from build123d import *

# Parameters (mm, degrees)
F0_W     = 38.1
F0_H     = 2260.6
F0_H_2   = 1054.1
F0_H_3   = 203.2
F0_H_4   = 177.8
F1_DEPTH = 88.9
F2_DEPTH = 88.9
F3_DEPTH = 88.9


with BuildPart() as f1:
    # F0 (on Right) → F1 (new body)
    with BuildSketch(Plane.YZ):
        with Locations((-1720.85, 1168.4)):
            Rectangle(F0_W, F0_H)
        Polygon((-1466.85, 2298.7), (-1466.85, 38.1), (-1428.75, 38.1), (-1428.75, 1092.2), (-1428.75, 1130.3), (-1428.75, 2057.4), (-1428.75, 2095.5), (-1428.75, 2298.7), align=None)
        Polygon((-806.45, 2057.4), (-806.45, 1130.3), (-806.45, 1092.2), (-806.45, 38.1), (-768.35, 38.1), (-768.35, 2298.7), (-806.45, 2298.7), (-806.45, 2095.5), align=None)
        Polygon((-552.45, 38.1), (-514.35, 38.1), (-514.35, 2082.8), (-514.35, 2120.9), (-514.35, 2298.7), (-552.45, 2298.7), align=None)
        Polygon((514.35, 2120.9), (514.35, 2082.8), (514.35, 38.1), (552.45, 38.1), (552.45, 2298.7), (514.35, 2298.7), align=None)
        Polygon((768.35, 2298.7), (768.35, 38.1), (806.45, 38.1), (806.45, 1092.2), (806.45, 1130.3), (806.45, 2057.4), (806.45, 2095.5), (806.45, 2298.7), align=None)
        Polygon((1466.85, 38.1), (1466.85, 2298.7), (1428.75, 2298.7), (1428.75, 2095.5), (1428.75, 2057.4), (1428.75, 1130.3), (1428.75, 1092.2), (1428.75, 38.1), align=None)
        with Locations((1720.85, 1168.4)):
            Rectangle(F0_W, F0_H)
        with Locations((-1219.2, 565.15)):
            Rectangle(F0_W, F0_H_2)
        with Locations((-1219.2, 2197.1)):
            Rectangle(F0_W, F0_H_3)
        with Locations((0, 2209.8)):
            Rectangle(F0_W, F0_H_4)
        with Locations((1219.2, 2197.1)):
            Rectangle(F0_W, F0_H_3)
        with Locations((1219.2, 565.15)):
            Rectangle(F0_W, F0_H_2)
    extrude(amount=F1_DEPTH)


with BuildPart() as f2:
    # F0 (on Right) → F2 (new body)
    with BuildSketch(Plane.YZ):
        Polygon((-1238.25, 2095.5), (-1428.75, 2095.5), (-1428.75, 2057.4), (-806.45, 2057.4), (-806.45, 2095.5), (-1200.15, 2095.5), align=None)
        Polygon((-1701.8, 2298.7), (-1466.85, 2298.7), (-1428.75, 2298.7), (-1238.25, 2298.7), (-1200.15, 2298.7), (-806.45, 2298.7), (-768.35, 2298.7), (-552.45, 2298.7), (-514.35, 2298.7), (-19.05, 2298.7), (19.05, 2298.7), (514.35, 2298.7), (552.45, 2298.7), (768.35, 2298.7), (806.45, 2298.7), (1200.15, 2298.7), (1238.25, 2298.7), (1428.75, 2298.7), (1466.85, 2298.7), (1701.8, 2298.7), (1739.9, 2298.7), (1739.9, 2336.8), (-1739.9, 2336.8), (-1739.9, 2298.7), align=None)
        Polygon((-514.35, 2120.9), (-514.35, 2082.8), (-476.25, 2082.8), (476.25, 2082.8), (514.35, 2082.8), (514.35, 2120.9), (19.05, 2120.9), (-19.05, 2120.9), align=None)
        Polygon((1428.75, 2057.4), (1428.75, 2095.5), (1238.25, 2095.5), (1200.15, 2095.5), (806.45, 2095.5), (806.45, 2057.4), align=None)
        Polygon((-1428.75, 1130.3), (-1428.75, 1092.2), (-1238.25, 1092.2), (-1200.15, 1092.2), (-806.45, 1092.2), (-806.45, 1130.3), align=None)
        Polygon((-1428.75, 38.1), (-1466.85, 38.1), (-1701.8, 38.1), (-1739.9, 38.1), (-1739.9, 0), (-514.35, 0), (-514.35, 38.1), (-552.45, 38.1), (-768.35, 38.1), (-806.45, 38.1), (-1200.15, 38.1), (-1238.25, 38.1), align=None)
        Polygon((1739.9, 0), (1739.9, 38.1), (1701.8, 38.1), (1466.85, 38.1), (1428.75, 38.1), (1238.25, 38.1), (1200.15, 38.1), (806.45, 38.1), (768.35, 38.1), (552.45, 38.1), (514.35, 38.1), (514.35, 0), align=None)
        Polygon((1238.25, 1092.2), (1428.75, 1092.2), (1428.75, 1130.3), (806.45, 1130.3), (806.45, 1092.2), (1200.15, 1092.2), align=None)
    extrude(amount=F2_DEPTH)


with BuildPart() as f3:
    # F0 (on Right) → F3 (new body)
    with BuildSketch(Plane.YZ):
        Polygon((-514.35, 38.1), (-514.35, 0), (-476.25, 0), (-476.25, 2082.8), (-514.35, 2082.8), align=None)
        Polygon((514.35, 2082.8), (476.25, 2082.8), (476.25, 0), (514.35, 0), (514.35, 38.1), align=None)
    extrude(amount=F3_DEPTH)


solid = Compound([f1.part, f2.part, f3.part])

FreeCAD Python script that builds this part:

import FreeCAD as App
import Part
import Sketcher

V = App.Vector
Q = App.Units.Quantity


def add_polygon(sketch, points):
    """Adds a closed chain of lines whose ends are joined by coincident constraints."""
    first, n = sketch.GeometryCount, len(points)
    for a, b in zip(points, points[1:] + points[:1]):
        sketch.addGeometry(Part.LineSegment(App.Vector(*a, 0), App.Vector(*b, 0)), False)
    for i in range(n):
        sketch.addConstraint(Sketcher.Constraint("Coincident", first + i, 2, first + (i + 1) % n, 1))

doc = App.newDocument("Part")
body = doc.addObject("PartDesign::Body", "Body")
body.AllowCompound = True

# Sketch on YZ plane
sketch1 = body.newObject("Sketcher::SketchObject", "Sketch")
sketch1.AttachmentSupport = (doc.getObject("YZ_Plane"), [""])
sketch1.MapMode = "FlatFace"
add_polygon(sketch1, [(-1740, 2299), (-1740, 38), (-1702, 38), (-1702, 2299)])  # lines 0-3
add_polygon(sketch1, [(-1467, 2299), (-1467, 38), (-1429, 38), (-1429, 2299)])  # lines 4-7
add_polygon(sketch1, [(-806, 38), (-768, 38), (-768, 2299), (-806, 2299)])  # lines 8-11
add_polygon(sketch1, [(-552, 38), (-514, 38), (-514, 2299), (-552, 2299)])  # lines 12-15
add_polygon(sketch1, [(514, 38), (552, 38), (552, 2299), (514, 2299)])  # lines 16-19
add_polygon(sketch1, [(768, 2299), (768, 38), (806, 38), (806, 2299)])  # lines 20-23
add_polygon(sketch1, [(1467, 38), (1467, 2299), (1429, 2299), (1429, 38)])  # lines 24-27
add_polygon(sketch1, [(1702, 2299), (1702, 38), (1740, 38), (1740, 2299)])  # lines 28-31
add_polygon(sketch1, [(-1238, 1092), (-1238, 38), (-1200, 38), (-1200, 1092)])  # lines 32-35
add_polygon(sketch1, [(-1238, 2299), (-1238, 2096), (-1200, 2096), (-1200, 2299)])  # lines 36-39
add_polygon(sketch1, [(-19, 2299), (-19, 2121), (19, 2121), (19, 2299)])  # lines 40-43
add_polygon(sketch1, [(1200, 2299), (1200, 2096), (1238, 2096), (1238, 2299)])  # lines 44-47
add_polygon(sketch1, [(1200, 1092), (1200, 38), (1238, 38), (1238, 1092)])  # lines 48-51
sketch1.addConstraint([
    Sketcher.Constraint("Vertical", 0),
    Sketcher.Constraint("Horizontal", 1),
    Sketcher.Constraint("Vertical", 2),
    Sketcher.Constraint("Horizontal", 3),
    Sketcher.Constraint("Vertical", 4),
    Sketcher.Constraint("Horizontal", 5),
    Sketcher.Constraint("Vertical", 6),
    Sketcher.Constraint("Horizontal", 7),
    Sketcher.Constraint("Horizontal", 8),
    Sketcher.Constraint("Vertical", 9),
    Sketcher.Constraint("Horizontal", 10),
    Sketcher.Constraint("Vertical", 11),
    Sketcher.Constraint("Horizontal", 12),
    Sketcher.Constraint("Vertical", 13),
    Sketcher.Constraint("Horizontal", 14),
    Sketcher.Constraint("Vertical", 15),
    Sketcher.Constraint("Horizontal", 16),
    Sketcher.Constraint("Vertical", 17),
    Sketcher.Constraint("Horizontal", 18),
    Sketcher.Constraint("Vertical", 19),
    Sketcher.Constraint("Vertical", 20),
    Sketcher.Constraint("Horizontal", 21),
    Sketcher.Constraint("Vertical", 22),
    Sketcher.Constraint("Horizontal", 23),
    Sketcher.Constraint("Vertical", 24),
    Sketcher.Constraint("Horizontal", 25),
    Sketcher.Constraint("Vertical", 26),
    Sketcher.Constraint("Horizontal", 27),
    Sketcher.Constraint("Vertical", 28),
    Sketcher.Constraint("Horizontal", 29),
    Sketcher.Constraint("Vertical", 30),
    Sketcher.Constraint("Horizontal", 31),
    Sketcher.Constraint("Vertical", 32),
    Sketcher.Constraint("Horizontal", 33),
    Sketcher.Constraint("Vertical", 34),
    Sketcher.Constraint("Horizontal", 35),
    Sketcher.Constraint("Vertical", 36),
    Sketcher.Constraint("Horizontal", 37),
    Sketcher.Constraint("Vertical", 38),
    Sketcher.Constraint("Horizontal", 39),
    Sketcher.Constraint("Vertical", 40),
    Sketcher.Constraint("Horizontal", 41),
    Sketcher.Constraint("Vertical", 42),
    Sketcher.Constraint("Horizontal", 43),
    Sketcher.Constraint("Vertical", 44),
    Sketcher.Constraint("Horizontal", 45),
    Sketcher.Constraint("Vertical", 46),
    Sketcher.Constraint("Horizontal", 47),
    Sketcher.Constraint("Vertical", 48),
    Sketcher.Constraint("Horizontal", 49),
    Sketcher.Constraint("Vertical", 50),
    Sketcher.Constraint("Horizontal", 51),
    Sketcher.Constraint("Symmetric", 15, 2, 16, 2, -2),
    Sketcher.Constraint("Symmetric", 13, 2, 18, 2, -2),
    Sketcher.Constraint("Symmetric", 8, 2, 20, 2, -2),
    Sketcher.Constraint("Symmetric", 10, 2, 22, 2, -2),
    Sketcher.Constraint("Symmetric", 7, 2, 24, 2, -2),
    Sketcher.Constraint("Symmetric", 5, 2, 26, 2, -2),
    Sketcher.Constraint("Symmetric", 1, 2, 28, 2, -2),
    Sketcher.Constraint("Symmetric", 3, 2, 30, 2, -2),
    Sketcher.Constraint("Symmetric", 37, 2, 44, 2, -2),
    Sketcher.Constraint("Symmetric", 39, 2, 46, 2, -2),
    Sketcher.Constraint("Symmetric", 33, 2, 48, 2, -2),
    Sketcher.Constraint("Symmetric", 35, 2, 50, 2, -2),
    Sketcher.Constraint("Horizontal", 1, 2, 4, 2),
    Sketcher.Constraint("Horizontal", 3, 2, 6, 2),
    Sketcher.Constraint("Horizontal", 5, 2, 8, 2),
    Sketcher.Constraint("Horizontal", 7, 2, 9, 2),
    Sketcher.Constraint("Horizontal", 11, 2, 12, 2),
    Sketcher.Constraint("Horizontal", 10, 2, 13, 2),
    Sketcher.Constraint("Horizontal", 29, 2, 32, 2),
    Sketcher.Constraint("Horizontal", 31, 2, 38, 2),
    Sketcher.Constraint("Horizontal", 39, 2, 42, 2),
    Sketcher.Constraint("Vertical", 35, 2, 36, 2),
    Sketcher.Constraint("Vertical", 34, 2, 37, 2),
    Sketcher.Constraint("Equal", 3, 5),
    Sketcher.Constraint("Equal", 7, 8),
    Sketcher.Constraint("Equal", 10, 12),
    Sketcher.Constraint("Equal", 31, 33),
    Sketcher.Constraint("Equal", 39, 41),
    Sketcher.Constraint("DistanceY", 0, 2, 0, 1, Q("89 in")),
    Sketcher.Constraint("DistanceY", 36, 2, 36, 1, Q("8 in")),
    Sketcher.Constraint("DistanceY", 40, 2, 40, 1, Q("7 in")),
    Sketcher.Constraint("DistanceX", 1, 1, 1, 2, Q("1.5 in")),
    Sketcher.Constraint("DistanceY", 32, 2, 32, 1, Q("41.5 in")),
    Sketcher.Constraint("DistanceX", 1, 2, -1, 1, Q("67 in")),
    Sketcher.Constraint("DistanceY", -1, 1, 34, 2, Q("43 in")),
    Sketcher.Constraint("DistanceX", 5, 2, 8, 2, Q("26 in")),
    Sketcher.Constraint("DistanceX", 8, 2, 12, 2, Q("10 in")),
    Sketcher.Constraint("DistanceX", 12, 2, 16, 2, Q("42 in")),
    Sketcher.Constraint("DistanceX", 4, 2, 32, 2, Q("9 in")),
    Sketcher.Constraint("DistanceX", 40, 2, 18, 2, Q("21 in")),
])
pad1 = body.newObject("PartDesign::Pad", "Pad")
pad1.Profile = sketch1
pad1.Length = Q("3.5 in")
body2 = doc.addObject("PartDesign::Body", "Body001")
body2.AllowCompound = True

# Sketch on YZ plane
sketch2 = body2.newObject("Sketcher::SketchObject", "Sketch001")
sketch2.AttachmentSupport = (doc.getObject("YZ_Plane001"), [""])
sketch2.MapMode = "FlatFace"
add_polygon(sketch2, [(-1429, 2096), (-1429, 2057), (-806, 2057), (-806, 2096)])  # lines 0-3
add_polygon(sketch2, [(1740, 2299), (1740, 2337), (-1740, 2337), (-1740, 2299)])  # lines 4-7
add_polygon(sketch2, [(-514, 2121), (-514, 2083), (514, 2083), (514, 2121)])  # lines 8-11
add_polygon(sketch2, [(1429, 2057), (1429, 2096), (806, 2096), (806, 2057)])  # lines 12-15
add_polygon(sketch2, [(-1429, 1130), (-1429, 1092), (-806, 1092), (-806, 1130)])  # lines 16-19
add_polygon(sketch2, [(-1740, 38), (-1740, 0), (-514, 0), (-514, 38)])  # lines 20-23
add_polygon(sketch2, [(1740, 0), (1740, 38), (514, 38), (514, 0)])  # lines 24-27
add_polygon(sketch2, [(1429, 1092), (1429, 1130), (806, 1130), (806, 1092)])  # lines 28-31
sketch2.addConstraint([
    Sketcher.Constraint("Vertical", 0),
    Sketcher.Constraint("Horizontal", 1),
    Sketcher.Constraint("Vertical", 2),
    Sketcher.Constraint("Horizontal", 3),
    Sketcher.Constraint("Vertical", 4),
    Sketcher.Constraint("Horizontal", 5),
    Sketcher.Constraint("Vertical", 6),
    Sketcher.Constraint("Horizontal", 7),
    Sketcher.Constraint("Vertical", 8),
    Sketcher.Constraint("Horizontal", 9),
    Sketcher.Constraint("Vertical", 10),
    Sketcher.Constraint("Horizontal", 11),
    Sketcher.Constraint("Vertical", 12),
    Sketcher.Constraint("Horizontal", 13),
    Sketcher.Constraint("Vertical", 14),
    Sketcher.Constraint("Horizontal", 15),
    Sketcher.Constraint("Vertical", 16),
    Sketcher.Constraint("Horizontal", 17),
    Sketcher.Constraint("Vertical", 18),
    Sketcher.Constraint("Horizontal", 19),
    Sketcher.Constraint("Vertical", 20),
    Sketcher.Constraint("Horizontal", 21),
    Sketcher.Constraint("Vertical", 22),
    Sketcher.Constraint("Horizontal", 23),
    Sketcher.Constraint("Vertical", 24),
    Sketcher.Constraint("Horizontal", 25),
    Sketcher.Constraint("Vertical", 26),
    Sketcher.Constraint("Horizontal", 27),
    Sketcher.Constraint("Vertical", 28),
    Sketcher.Constraint("Horizontal", 29),
    Sketcher.Constraint("Vertical", 30),
    Sketcher.Constraint("Horizontal", 31),
    Sketcher.Constraint("Symmetric", 21, 2, 26, 2, -1, 1),
    Sketcher.Constraint("Symmetric", 3, 2, 12, 2, -2),
    Sketcher.Constraint("Symmetric", 1, 2, 14, 2, -2),
    Sketcher.Constraint("Symmetric", 23, 2, 24, 2, -2),
    Sketcher.Constraint("Symmetric", 19, 2, 28, 2, -2),
    Sketcher.Constraint("Symmetric", 17, 2, 30, 2, -2),
    Sketcher.Constraint("PointOnObject", 20, 2, -1),
    Sketcher.Constraint("Vertical", 3, 2, 16, 2),
    Sketcher.Constraint("Vertical", 2, 2, 17, 2),
    Sketcher.Constraint("Vertical", 6, 2, 20, 2),
    Sketcher.Constraint("Vertical", 11, 2, 21, 2),
    Sketcher.Constraint("Vertical", 7, 2, 24, 2),
    Sketcher.Constraint("Vertical", 10, 2, 25, 2),
    Sketcher.Constraint("Equal", 2, 4),
    Sketcher.Constraint("Equal", 6, 8),
    Sketcher.Constraint("Equal", 14, 16),
    Sketcher.Constraint("Equal", 18, 20),
    Sketcher.Constraint("DistanceX", 5, 2, 5, 1, Q("137 in")),
    Sketcher.Constraint("DistanceX", 1, 1, 1, 2, Q("24.5 in")),
    Sketcher.Constraint("DistanceX", 9, 1, 9, 2, Q("40.5 in")),
    Sketcher.Constraint("DistanceY", 0, 2, 0, 1, Q("1.5 in")),
    Sketcher.Constraint("DistanceY", -1, 1, 0, 2, Q("81 in")),
    Sketcher.Constraint("DistanceY", -1, 1, 4, 2, Q("92 in")),
    Sketcher.Constraint("DistanceY", -1, 1, 8, 2, Q("82 in")),
    Sketcher.Constraint("DistanceY", -1, 1, 16, 2, Q("43 in")),
    Sketcher.Constraint("DistanceX", 3, 2, 8, 2, Q("36 in")),
])
pad2 = body2.newObject("PartDesign::Pad", "Pad001")
pad2.Profile = sketch2
pad2.Length = Q("3.5 in")
body3 = doc.addObject("PartDesign::Body", "Body002")
body3.AllowCompound = True

# Sketch on YZ plane
sketch3 = body3.newObject("Sketcher::SketchObject", "Sketch002")
sketch3.AttachmentSupport = (doc.getObject("YZ_Plane002"), [""])
sketch3.MapMode = "FlatFace"
add_polygon(sketch3, [(-514, 0), (-476, 0), (-476, 2083), (-514, 2083)])  # lines 0-3
add_polygon(sketch3, [(514, 2083), (476, 2083), (476, 0), (514, 0)])  # lines 4-7
sketch3.addConstraint([
    Sketcher.Constraint("Horizontal", 0),
    Sketcher.Constraint("Vertical", 1),
    Sketcher.Constraint("Horizontal", 2),
    Sketcher.Constraint("Vertical", 3),
    Sketcher.Constraint("Horizontal", 4),
    Sketcher.Constraint("Vertical", 5),
    Sketcher.Constraint("Horizontal", 6),
    Sketcher.Constraint("Vertical", 7),
    Sketcher.Constraint("Symmetric", 0, 2, 5, 2, -1, 1),
    Sketcher.Constraint("Symmetric", 3, 2, 6, 2, -2),
    Sketcher.Constraint("Horizontal", 2, 2, 4, 2),
    Sketcher.Constraint("DistanceY", 1, 1, 1, 2, Q("82 in")),
    Sketcher.Constraint("DistanceX", 0, 1, 0, 2, Q("1.5 in")),
    Sketcher.Constraint("DistanceX", 2, 2, 4, 2, Q("39 in")),
])
pad3 = body3.newObject("PartDesign::Pad", "Pad002")
pad3.Profile = sketch3
pad3.Length = Q("3.5 in")

doc.recompute()
